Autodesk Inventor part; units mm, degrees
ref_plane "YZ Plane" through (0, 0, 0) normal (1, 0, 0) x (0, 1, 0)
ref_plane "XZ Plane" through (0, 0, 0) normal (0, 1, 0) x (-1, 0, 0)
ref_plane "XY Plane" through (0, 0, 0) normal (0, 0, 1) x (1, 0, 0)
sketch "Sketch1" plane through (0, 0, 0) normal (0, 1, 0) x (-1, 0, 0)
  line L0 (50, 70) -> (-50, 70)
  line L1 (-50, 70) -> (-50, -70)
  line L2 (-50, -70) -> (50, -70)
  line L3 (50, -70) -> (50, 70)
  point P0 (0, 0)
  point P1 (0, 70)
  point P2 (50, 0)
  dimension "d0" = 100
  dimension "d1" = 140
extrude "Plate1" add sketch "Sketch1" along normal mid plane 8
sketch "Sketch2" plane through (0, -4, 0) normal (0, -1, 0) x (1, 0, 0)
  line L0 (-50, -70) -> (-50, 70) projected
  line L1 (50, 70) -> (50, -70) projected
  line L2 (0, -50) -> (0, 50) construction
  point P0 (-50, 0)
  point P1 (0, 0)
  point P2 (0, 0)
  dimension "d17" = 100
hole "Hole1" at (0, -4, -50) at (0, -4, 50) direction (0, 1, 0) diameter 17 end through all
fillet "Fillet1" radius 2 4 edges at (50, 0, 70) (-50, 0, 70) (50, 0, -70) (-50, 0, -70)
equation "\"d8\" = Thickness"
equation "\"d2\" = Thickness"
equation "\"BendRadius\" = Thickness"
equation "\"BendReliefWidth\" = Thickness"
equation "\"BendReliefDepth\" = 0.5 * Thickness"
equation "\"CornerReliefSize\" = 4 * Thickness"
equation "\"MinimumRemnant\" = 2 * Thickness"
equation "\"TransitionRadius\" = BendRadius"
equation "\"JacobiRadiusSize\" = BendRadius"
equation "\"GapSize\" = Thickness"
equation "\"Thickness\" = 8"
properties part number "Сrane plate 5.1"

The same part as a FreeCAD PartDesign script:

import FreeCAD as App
import Part
import Sketcher
from FreeCAD import Vector


def edges_at(feature, points):
    """Names of the edges that pass closest to the given points."""
    edges = feature.Shape.Edges
    near = lambda p: min(range(len(edges)), key=lambda i: edges[i].distToShape(Part.Vertex(*p))[0])
    return sorted({f"Edge{near(p) + 1}" for p in points})

doc = App.newDocument("Part")
params = doc.addObject("Spreadsheet::Sheet", "Params")
for row, (alias, value) in enumerate([
    ("sketch1_width", "100 mm"),
    ("sketch1_height", "140 mm"),
    ("pad1_length", "8 mm"),
    ("sketch2_diameter", "17 mm"),
    ("hole_diameter", "17 mm"),
    ("fillet_radius", "2 mm"),
], start=1):
    params.set(f"A{row}", alias)
    params.set(f"B{row}", "=" + value)
    params.setAlias(f"B{row}", alias)

body = doc.addObject("PartDesign::Body", "Body")

sketch1 = body.newObject("Sketcher::SketchObject", "Sketch")
sketch1.AttachmentSupport = (doc.getObject("XZ_Plane"), [""])
sketch1.MapMode = "FlatFace"
sketch1.addGeometry(Part.LineSegment(Vector(-50, -70, 0), Vector(-50, 70, 0)), False)
sketch1.addGeometry(Part.LineSegment(Vector(-50, 70, 0), Vector(50, 70, 0)), False)
sketch1.addGeometry(Part.LineSegment(Vector(50, 70, 0), Vector(50, -70, 0)), False)
sketch1.addGeometry(Part.LineSegment(Vector(50, -70, 0), Vector(-50, -70, 0)), False)
sketch1.addConstraint(Sketcher.Constraint("Coincident", 0, 2, 1, 1))
sketch1.addConstraint(Sketcher.Constraint("Coincident", 1, 2, 2, 1))
sketch1.addConstraint(Sketcher.Constraint("Coincident", 2, 2, 3, 1))
sketch1.addConstraint(Sketcher.Constraint("Coincident", 3, 2, 0, 1))
sketch1.addConstraint(Sketcher.Constraint("Vertical", 0))
sketch1.addConstraint(Sketcher.Constraint("Horizontal", 1))
sketch1.addConstraint(Sketcher.Constraint("Vertical", 2))
sketch1.addConstraint(Sketcher.Constraint("Horizontal", 3))
sketch1.addConstraint(Sketcher.Constraint("Symmetric", 0, 2, 2, 2, -1, 1))
sketch1.addConstraint(Sketcher.Constraint("DistanceX", 1, 1, 1, 2, 100.0))
sketch1.addConstraint(Sketcher.Constraint("DistanceY", 0, 1, 0, 2, 140.0))
sketch1.setExpression("Constraints[9]", "Params.sketch1_width")
sketch1.setExpression("Constraints[10]", "Params.sketch1_height")
pad1 = body.newObject("PartDesign::Pad", "Pad")
pad1.Profile = sketch1
pad1.setExpression("Length", "Params.pad1_length")
pad1.Midplane = True

sketch2 = body.newObject("Sketcher::SketchObject", "Sketch001")
sketch2.AttachmentSupport = (doc.getObject("XZ_Plane"), [""])
sketch2.MapMode = "FlatFace"
sketch2.AttachmentOffset = App.Placement(Vector(0, 0, 4), App.Rotation())
sketch2.addGeometry(Part.Circle(Vector(0, -50, 0), Vector(0, 0, 1), 8), False)
sketch2.addGeometry(Part.Circle(Vector(0, 50, 0), Vector(0, 0, 1), 8), False)
sketch2.addConstraint(Sketcher.Constraint("Equal", 0, 1))
sketch2.addConstraint(Sketcher.Constraint("Symmetric", 0, 3, 1, 3, -1, 1))
sketch2.addConstraint(Sketcher.Constraint("PointOnObject", 0, 3, -2))
sketch2.addConstraint(Sketcher.Constraint("Diameter", 0, 17.0))
sketch2.addConstraint(Sketcher.Constraint("DistanceY", 0, 3, -1, 1, 50.0))
sketch2.setExpression("Constraints[3]", "Params.sketch2_diameter")
doc.recompute()
hole = body.newObject("PartDesign::Hole", "Hole")
hole.Profile = sketch2
hole.ThreadType = "None"
hole.setExpression("Diameter", "Params.hole_diameter")
hole.DepthType = "ThroughAll"
doc.recompute()

fillet = body.newObject("PartDesign::Fillet", "Fillet")
fillet.Base = (hole, edges_at(hole, [
    (50, 0, 70),
    (-50, 0, 70),
    (50, 0, -70),
    (-50, 0, -70),
]))
fillet.setExpression("Radius", "Params.fillet_radius")

doc.recompute()
